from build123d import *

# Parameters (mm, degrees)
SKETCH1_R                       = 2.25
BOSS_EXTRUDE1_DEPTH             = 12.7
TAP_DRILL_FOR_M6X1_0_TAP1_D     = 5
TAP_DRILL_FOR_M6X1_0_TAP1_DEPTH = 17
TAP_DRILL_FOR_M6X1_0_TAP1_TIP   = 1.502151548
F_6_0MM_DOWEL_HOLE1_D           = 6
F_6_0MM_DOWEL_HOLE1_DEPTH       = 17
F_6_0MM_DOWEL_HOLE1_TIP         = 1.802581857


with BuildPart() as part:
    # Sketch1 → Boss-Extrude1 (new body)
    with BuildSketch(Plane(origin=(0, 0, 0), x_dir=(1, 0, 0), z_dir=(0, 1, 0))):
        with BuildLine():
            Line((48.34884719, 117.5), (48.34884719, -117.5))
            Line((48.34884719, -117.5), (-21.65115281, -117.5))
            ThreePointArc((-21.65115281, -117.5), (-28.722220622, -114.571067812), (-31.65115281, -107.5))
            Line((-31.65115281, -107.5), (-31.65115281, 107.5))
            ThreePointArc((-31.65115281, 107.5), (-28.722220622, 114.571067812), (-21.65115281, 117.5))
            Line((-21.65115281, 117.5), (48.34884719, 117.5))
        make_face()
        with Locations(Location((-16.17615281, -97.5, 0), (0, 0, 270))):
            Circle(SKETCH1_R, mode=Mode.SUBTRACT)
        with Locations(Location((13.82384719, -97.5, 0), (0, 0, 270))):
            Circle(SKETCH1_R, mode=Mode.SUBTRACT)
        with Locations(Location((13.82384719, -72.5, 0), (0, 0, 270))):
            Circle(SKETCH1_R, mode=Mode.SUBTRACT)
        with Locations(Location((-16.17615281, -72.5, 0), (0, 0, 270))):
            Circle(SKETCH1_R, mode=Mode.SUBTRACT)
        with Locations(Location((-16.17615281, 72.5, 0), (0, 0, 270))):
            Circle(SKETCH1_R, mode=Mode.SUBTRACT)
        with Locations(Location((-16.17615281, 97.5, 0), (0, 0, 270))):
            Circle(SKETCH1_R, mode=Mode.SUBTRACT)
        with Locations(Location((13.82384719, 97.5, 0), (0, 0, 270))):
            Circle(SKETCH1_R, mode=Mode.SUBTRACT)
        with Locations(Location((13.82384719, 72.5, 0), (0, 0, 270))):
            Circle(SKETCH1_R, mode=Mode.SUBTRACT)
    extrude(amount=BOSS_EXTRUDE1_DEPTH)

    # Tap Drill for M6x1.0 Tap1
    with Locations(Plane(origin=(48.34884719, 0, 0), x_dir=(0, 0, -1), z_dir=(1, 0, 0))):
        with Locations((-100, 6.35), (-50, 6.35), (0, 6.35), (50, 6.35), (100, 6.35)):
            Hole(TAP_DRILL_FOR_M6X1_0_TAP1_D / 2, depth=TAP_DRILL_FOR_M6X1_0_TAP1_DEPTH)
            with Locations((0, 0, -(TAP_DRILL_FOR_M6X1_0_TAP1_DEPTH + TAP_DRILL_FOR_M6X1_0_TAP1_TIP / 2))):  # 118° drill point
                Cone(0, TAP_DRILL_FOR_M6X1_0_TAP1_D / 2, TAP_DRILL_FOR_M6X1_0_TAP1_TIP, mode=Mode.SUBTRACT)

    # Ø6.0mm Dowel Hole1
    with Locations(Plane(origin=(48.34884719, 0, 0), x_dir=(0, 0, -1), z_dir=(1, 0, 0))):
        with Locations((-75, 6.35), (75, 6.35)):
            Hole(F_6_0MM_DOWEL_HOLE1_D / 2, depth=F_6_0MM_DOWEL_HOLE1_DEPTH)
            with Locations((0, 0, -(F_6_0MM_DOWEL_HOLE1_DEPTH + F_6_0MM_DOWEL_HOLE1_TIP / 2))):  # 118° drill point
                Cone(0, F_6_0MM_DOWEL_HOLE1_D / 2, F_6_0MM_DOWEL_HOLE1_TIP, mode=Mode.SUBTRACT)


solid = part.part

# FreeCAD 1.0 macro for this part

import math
import FreeCAD as App
import Part
import Sketcher
from FreeCAD import Vector

doc = App.newDocument("Part")
params = doc.addObject("Spreadsheet::Sheet", "Params")
for row, (alias, value) in enumerate([
    ("sketch1_radius", "10 mm"),
    ("sketch1_diameter", "4.5 mm"),
    ("sketch1_width", "70 mm"),
    ("sketch1_height", "235 mm"),
    ("pad1_length", "12.7 mm"),
    ("sketch2_diameter", "5 mm"),
    ("hole_diameter", "5 mm"),
    ("hole_depth", "17 mm"),
    ("sketch3_diameter", "6 mm"),
    ("hole2_diameter", "6 mm"),
    ("hole2_depth", "17 mm"),
], start=1):
    params.set(f"A{row}", alias)
    params.set(f"B{row}", "=" + value)
    params.setAlias(f"B{row}", alias)

body = doc.addObject("PartDesign::Body", "Body")

# Sketch on XZ plane
sketch1 = body.newObject("Sketcher::SketchObject", "Sketch")
sketch1.AttachmentSupport = (doc.getObject("XZ_Plane"), [""])
sketch1.MapMode = "FlatFace"
sketch1.addGeometry(Part.LineSegment(Vector(48.3, 117.5, 0), Vector(48.3, -117.5, 0)), False)
sketch1.addGeometry(Part.LineSegment(Vector(48.3, -117.5, 0), Vector(-21.7, -117.5, 0)), False)
sketch1.addGeometry(Part.ArcOfCircle(Part.Circle(Vector(-21.7, -107.5, 0), Vector(0, 0, 1), 10), math.radians(180), math.radians(270)), False)
sketch1.addGeometry(Part.LineSegment(Vector(-31.7, -107.5, 0), Vector(-31.7, 107.5, 0)), False)
sketch1.addGeometry(Part.ArcOfCircle(Part.Circle(Vector(-21.7, 107.5, 0), Vector(0, 0, 1), 10), math.radians(90), math.radians(180)), False)
sketch1.addGeometry(Part.LineSegment(Vector(-21.7, 117.5, 0), Vector(48.3, 117.5, 0)), False)
sketch1.addGeometry(Part.Circle(Vector(13.8, 97.5, 0), Vector(0, 0, 1), 2.2), False)
sketch1.addGeometry(Part.Circle(Vector(13.8, 72.5, 0), Vector(0, 0, 1), 2.2), False)
sketch1.addGeometry(Part.Circle(Vector(-16.2, 97.5, 0), Vector(0, 0, 1), 2.2), False)
sketch1.addGeometry(Part.Circle(Vector(-16.2, 72.5, 0), Vector(0, 0, 1), 2.2), False)
sketch1.addGeometry(Part.Circle(Vector(13.8, -72.5, 0), Vector(0, 0, 1), 2.2), False)
sketch1.addGeometry(Part.Circle(Vector(13.8, -97.5, 0), Vector(0, 0, 1), 2.2), False)
sketch1.addGeometry(Part.Circle(Vector(-16.2, -72.5, 0), Vector(0, 0, 1), 2.2), False)
sketch1.addGeometry(Part.Circle(Vector(-16.2, -97.5, 0), Vector(0, 0, 1), 2.2), False)
sketch1.addConstraint(Sketcher.Constraint("Coincident", 0, 2, 1, 1))
sketch1.addConstraint(Sketcher.Constraint("Tangent", 1, 2, 2, 2))
sketch1.addConstraint(Sketcher.Constraint("Tangent", 2, 1, 3, 1))
sketch1.addConstraint(Sketcher.Constraint("Tangent", 3, 2, 4, 2))
sketch1.addConstraint(Sketcher.Constraint("Tangent", 4, 1, 5, 1))
sketch1.addConstraint(Sketcher.Constraint("Coincident", 5, 2, 0, 1))
sketch1.addConstraint(Sketcher.Constraint("Vertical", 0))
sketch1.addConstraint(Sketcher.Constraint("Horizontal", 1))
sketch1.addConstraint(Sketcher.Constraint("Vertical", 3))
sketch1.addConstraint(Sketcher.Constraint("Horizontal", 5))
sketch1.addConstraint(Sketcher.Constraint("Equal", 2, 4))
sketch1.addConstraint(Sketcher.Constraint("Equal", 6, 7))
sketch1.addConstraint(Sketcher.Constraint("Equal", 7, 8))
sketch1.addConstraint(Sketcher.Constraint("Equal", 8, 9))
sketch1.addConstraint(Sketcher.Constraint("Equal", 9, 10))
sketch1.addConstraint(Sketcher.Constraint("Equal", 10, 11))
sketch1.addConstraint(Sketcher.Constraint("Equal", 11, 12))
sketch1.addConstraint(Sketcher.Constraint("Equal", 12, 13))
sketch1.addConstraint(Sketcher.Constraint("Symmetric", 7, 3, 10, 3, -1))
sketch1.addConstraint(Sketcher.Constraint("Symmetric", 6, 3, 11, 3, -1))
sketch1.addConstraint(Sketcher.Constraint("Symmetric", 9, 3, 12, 3, -1))
sketch1.addConstraint(Sketcher.Constraint("Symmetric", 8, 3, 13, 3, -1))
sketch1.addConstraint(Sketcher.Constraint("Horizontal", 6, 3, 8, 3))
sketch1.addConstraint(Sketcher.Constraint("Horizontal", 7, 3, 9, 3))
sketch1.addConstraint(Sketcher.Constraint("Vertical", 6, 3, 7, 3))
sketch1.addConstraint(Sketcher.Constraint("Vertical", 8, 3, 9, 3))
sketch1.addConstraint(Sketcher.Constraint("Radius", 2, 10.0))
sketch1.addConstraint(Sketcher.Constraint("Diameter", 6, 4.5))
sketch1.addConstraint(Sketcher.Constraint("DistanceX", 1, 2, 1, 1, 70.0))
sketch1.addConstraint(Sketcher.Constraint("DistanceY", 0, 2, 0, 1, 235.0))
sketch1.addConstraint(Sketcher.Constraint("DistanceY", 6, 3, 4, 3, 10.0))
sketch1.addConstraint(Sketcher.Constraint("DistanceY", 7, 3, 6, 3, 25.0))
sketch1.addConstraint(Sketcher.Constraint("DistanceX", 8, 3, 6, 3, 30.0))
sketch1.addConstraint(Sketcher.Constraint("DistanceY", 2, 3, 10, 3, 35.0))
sketch1.addConstraint(Sketcher.Constraint("DistanceX", 4, 3, 6, 3, 35.475))
sketch1.addConstraint(Sketcher.Constraint("DistanceX", 2, 3, -1, 1, 21.651153))
sketch1.setExpression("Constraints[26]", "Params.sketch1_radius")
sketch1.setExpression("Constraints[27]", "Params.sketch1_diameter")
sketch1.setExpression("Constraints[28]", "Params.sketch1_width")
sketch1.setExpression("Constraints[29]", "Params.sketch1_height")
pad1 = body.newObject("PartDesign::Pad", "Pad")
pad1.Profile = sketch1
pad1.setExpression("Length", "Params.pad1_length")
pad1.Reversed = True

# Sketch on YZ plane
sketch2 = body.newObject("Sketcher::SketchObject", "Sketch001")
sketch2.AttachmentSupport = (doc.getObject("YZ_Plane"), [""])
sketch2.MapMode = "FlatFace"
sketch2.AttachmentOffset = App.Placement(Vector(0, 0, 48.348847), App.Rotation())
sketch2.addGeometry(Part.Circle(Vector(6.3, 100, 0), Vector(0, 0, 1), 2.5), False)
sketch2.addGeometry(Part.Circle(Vector(6.3, 50, 0), Vector(0, 0, 1), 2.5), False)
sketch2.addGeometry(Part.Circle(Vector(6.3, 0, 0), Vector(0, 0, 1), 2.5), False)
sketch2.addGeometry(Part.Circle(Vector(6.3, -50, 0), Vector(0, 0, 1), 2.5), False)
sketch2.addGeometry(Part.Circle(Vector(6.3, -100, 0), Vector(0, 0, 1), 2.5), False)
sketch2.addConstraint(Sketcher.Constraint("Equal", 0, 1))
sketch2.addConstraint(Sketcher.Constraint("Equal", 1, 2))
sketch2.addConstraint(Sketcher.Constraint("Equal", 2, 3))
sketch2.addConstraint(Sketcher.Constraint("Equal", 3, 4))
sketch2.addConstraint(Sketcher.Constraint("Symmetric", 1, 3, 3, 3, -1))
sketch2.addConstraint(Sketcher.Constraint("Symmetric", 0, 3, 4, 3, -1))
sketch2.addConstraint(Sketcher.Constraint("PointOnObject", 2, 3, -1))
sketch2.addConstraint(Sketcher.Constraint("Vertical", 0, 3, 1, 3))
sketch2.addConstraint(Sketcher.Constraint("Vertical", 1, 3, 2, 3))
sketch2.addConstraint(Sketcher.Constraint("Diameter", 0, 5.0))
sketch2.addConstraint(Sketcher.Constraint("DistanceY", -1, 1, 0, 3, 100.0))
sketch2.addConstraint(Sketcher.Constraint("DistanceY", -1, 1, 1, 3, 50.0))
sketch2.addConstraint(Sketcher.Constraint("DistanceX", -1, 1, 0, 3, 6.35))
sketch2.setExpression("Constraints[9]", "Params.sketch2_diameter")
doc.recompute()
hole = body.newObject("PartDesign::Hole", "Hole")
hole.Profile = sketch2
hole.ThreadType = "None"
hole.setExpression("Diameter", "Params.hole_diameter")
hole.DepthType = "Dimension"
hole.setExpression("Depth", "Params.hole_depth")
hole.DrillPoint = "Angled"
hole.DrillPointAngle = 118

# Sketch on YZ plane
sketch3 = body.newObject("Sketcher::SketchObject", "Sketch002")
sketch3.AttachmentSupport = (doc.getObject("YZ_Plane"), [""])
sketch3.MapMode = "FlatFace"
sketch3.AttachmentOffset = App.Placement(Vector(0, 0, 48.348847), App.Rotation())
sketch3.addGeometry(Part.Circle(Vector(6.3, 75, 0), Vector(0, 0, 1), 3), False)
sketch3.addGeometry(Part.Circle(Vector(6.3, -75, 0), Vector(0, 0, 1), 3), False)
sketch3.addConstraint(Sketcher.Constraint("Equal", 0, 1))
sketch3.addConstraint(Sketcher.Constraint("Symmetric", 0, 3, 1, 3, -1))
sketch3.addConstraint(Sketcher.Constraint("Diameter", 0, 6.0))
sketch3.addConstraint(Sketcher.Constraint("DistanceY", -1, 1, 0, 3, 75.0))
sketch3.addConstraint(Sketcher.Constraint("DistanceX", -1, 1, 0, 3, 6.35))
sketch3.setExpression("Constraints[2]", "Params.sketch3_diameter")
doc.recompute()
hole2 = body.newObject("PartDesign::Hole", "Hole001")
hole2.Profile = sketch3
hole2.ThreadType = "None"
hole2.setExpression("Diameter", "Params.hole2_diameter")
hole2.DepthType = "Dimension"
hole2.setExpression("Depth", "Params.hole2_depth")
hole2.DrillPoint = "Angled"
hole2.DrillPointAngle = 118

doc.recompute()
